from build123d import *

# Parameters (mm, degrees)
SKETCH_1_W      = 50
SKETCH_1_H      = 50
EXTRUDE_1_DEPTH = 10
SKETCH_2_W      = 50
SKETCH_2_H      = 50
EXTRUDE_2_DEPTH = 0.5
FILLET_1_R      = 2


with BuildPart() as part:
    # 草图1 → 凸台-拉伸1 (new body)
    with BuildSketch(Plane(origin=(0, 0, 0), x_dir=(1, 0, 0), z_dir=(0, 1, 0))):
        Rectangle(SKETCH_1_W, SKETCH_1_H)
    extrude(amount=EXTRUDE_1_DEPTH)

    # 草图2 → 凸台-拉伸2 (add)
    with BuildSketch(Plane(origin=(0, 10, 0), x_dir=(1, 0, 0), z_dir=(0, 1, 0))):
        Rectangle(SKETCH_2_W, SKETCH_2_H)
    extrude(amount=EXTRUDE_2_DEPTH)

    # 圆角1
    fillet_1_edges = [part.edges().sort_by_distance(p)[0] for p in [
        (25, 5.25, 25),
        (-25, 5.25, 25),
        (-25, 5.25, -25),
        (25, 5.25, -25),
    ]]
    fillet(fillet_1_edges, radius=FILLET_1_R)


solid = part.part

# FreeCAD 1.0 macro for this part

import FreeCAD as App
import Part
import Sketcher

V = App.Vector


def edges_at(feature, points):
    """Names of the edges that pass closest to the given points."""
    edges = feature.Shape.Edges
    near = lambda p: min(range(len(edges)), key=lambda i: edges[i].distToShape(Part.Vertex(*p))[0])
    return sorted({f"Edge{near(p) + 1}" for p in points})


def add_polygon(sketch, points):
    """Adds a closed chain of lines whose ends are joined by coincident constraints."""
    first, n = sketch.GeometryCount, len(points)
    for a, b in zip(points, points[1:] + points[:1]):
        sketch.addGeometry(Part.LineSegment(App.Vector(*a, 0), App.Vector(*b, 0)), False)
    for i in range(n):
        sketch.addConstraint(Sketcher.Constraint("Coincident", first + i, 2, first + (i + 1) % n, 1))

doc = App.newDocument("Part")
body = doc.addObject("PartDesign::Body", "Body")

sketch1 = body.newObject("Sketcher::SketchObject", "Sketch")
sketch1.AttachmentSupport = (doc.getObject("XZ_Plane"), [""])
sketch1.MapMode = "FlatFace"
add_polygon(sketch1, [(-25, -25), (-25, 25), (25, 25), (25, -25)])
sketch1.addConstraint(Sketcher.Constraint("Vertical", 0))
sketch1.addConstraint(Sketcher.Constraint("Horizontal", 1))
sketch1.addConstraint(Sketcher.Constraint("Vertical", 2))
sketch1.addConstraint(Sketcher.Constraint("Horizontal", 3))
sketch1.addConstraint(Sketcher.Constraint("Symmetric", 0, 2, 2, 2, -1, 1))
sketch1.addConstraint(Sketcher.Constraint("Equal", 3, 0))
sketch1.addConstraint(Sketcher.Constraint("DistanceX", 1, 1, 1, 2, 50.0))
pad1 = body.newObject("PartDesign::Pad", "Pad")
pad1.Profile = sketch1
pad1.Length = 10
pad1.Reversed = True

sketch2 = body.newObject("Sketcher::SketchObject", "Sketch001")
sketch2.AttachmentSupport = (doc.getObject("XZ_Plane"), [""])
sketch2.MapMode = "FlatFace"
sketch2.AttachmentOffset = App.Placement(V(0, 0, -10), App.Rotation())
add_polygon(sketch2, [(-25, -25), (-25, 25), (25, 25), (25, -25)])
sketch2.addConstraint(Sketcher.Constraint("Vertical", 0))
sketch2.addConstraint(Sketcher.Constraint("Horizontal", 1))
sketch2.addConstraint(Sketcher.Constraint("Vertical", 2))
sketch2.addConstraint(Sketcher.Constraint("Horizontal", 3))
sketch2.addConstraint(Sketcher.Constraint("Symmetric", 0, 2, 2, 2, -1, 1))
sketch2.addConstraint(Sketcher.Constraint("Equal", 3, 0))
sketch2.addConstraint(Sketcher.Constraint("DistanceX", 1, 1, 1, 2, 50.0))
pad2 = body.newObject("PartDesign::Pad", "Pad001")
pad2.Profile = sketch2
pad2.Length = 0.5
pad2.Reversed = True
doc.recompute()

fillet = body.newObject("PartDesign::Fillet", "Fillet")
fillet.Base = (pad2, edges_at(pad2, [
    (25, 5.25, 25),
    (-25, 5.25, 25),
    (-25, 5.25, -25),
    (25, 5.25, -25),
]))
fillet.Radius = 2

doc.recompute()
